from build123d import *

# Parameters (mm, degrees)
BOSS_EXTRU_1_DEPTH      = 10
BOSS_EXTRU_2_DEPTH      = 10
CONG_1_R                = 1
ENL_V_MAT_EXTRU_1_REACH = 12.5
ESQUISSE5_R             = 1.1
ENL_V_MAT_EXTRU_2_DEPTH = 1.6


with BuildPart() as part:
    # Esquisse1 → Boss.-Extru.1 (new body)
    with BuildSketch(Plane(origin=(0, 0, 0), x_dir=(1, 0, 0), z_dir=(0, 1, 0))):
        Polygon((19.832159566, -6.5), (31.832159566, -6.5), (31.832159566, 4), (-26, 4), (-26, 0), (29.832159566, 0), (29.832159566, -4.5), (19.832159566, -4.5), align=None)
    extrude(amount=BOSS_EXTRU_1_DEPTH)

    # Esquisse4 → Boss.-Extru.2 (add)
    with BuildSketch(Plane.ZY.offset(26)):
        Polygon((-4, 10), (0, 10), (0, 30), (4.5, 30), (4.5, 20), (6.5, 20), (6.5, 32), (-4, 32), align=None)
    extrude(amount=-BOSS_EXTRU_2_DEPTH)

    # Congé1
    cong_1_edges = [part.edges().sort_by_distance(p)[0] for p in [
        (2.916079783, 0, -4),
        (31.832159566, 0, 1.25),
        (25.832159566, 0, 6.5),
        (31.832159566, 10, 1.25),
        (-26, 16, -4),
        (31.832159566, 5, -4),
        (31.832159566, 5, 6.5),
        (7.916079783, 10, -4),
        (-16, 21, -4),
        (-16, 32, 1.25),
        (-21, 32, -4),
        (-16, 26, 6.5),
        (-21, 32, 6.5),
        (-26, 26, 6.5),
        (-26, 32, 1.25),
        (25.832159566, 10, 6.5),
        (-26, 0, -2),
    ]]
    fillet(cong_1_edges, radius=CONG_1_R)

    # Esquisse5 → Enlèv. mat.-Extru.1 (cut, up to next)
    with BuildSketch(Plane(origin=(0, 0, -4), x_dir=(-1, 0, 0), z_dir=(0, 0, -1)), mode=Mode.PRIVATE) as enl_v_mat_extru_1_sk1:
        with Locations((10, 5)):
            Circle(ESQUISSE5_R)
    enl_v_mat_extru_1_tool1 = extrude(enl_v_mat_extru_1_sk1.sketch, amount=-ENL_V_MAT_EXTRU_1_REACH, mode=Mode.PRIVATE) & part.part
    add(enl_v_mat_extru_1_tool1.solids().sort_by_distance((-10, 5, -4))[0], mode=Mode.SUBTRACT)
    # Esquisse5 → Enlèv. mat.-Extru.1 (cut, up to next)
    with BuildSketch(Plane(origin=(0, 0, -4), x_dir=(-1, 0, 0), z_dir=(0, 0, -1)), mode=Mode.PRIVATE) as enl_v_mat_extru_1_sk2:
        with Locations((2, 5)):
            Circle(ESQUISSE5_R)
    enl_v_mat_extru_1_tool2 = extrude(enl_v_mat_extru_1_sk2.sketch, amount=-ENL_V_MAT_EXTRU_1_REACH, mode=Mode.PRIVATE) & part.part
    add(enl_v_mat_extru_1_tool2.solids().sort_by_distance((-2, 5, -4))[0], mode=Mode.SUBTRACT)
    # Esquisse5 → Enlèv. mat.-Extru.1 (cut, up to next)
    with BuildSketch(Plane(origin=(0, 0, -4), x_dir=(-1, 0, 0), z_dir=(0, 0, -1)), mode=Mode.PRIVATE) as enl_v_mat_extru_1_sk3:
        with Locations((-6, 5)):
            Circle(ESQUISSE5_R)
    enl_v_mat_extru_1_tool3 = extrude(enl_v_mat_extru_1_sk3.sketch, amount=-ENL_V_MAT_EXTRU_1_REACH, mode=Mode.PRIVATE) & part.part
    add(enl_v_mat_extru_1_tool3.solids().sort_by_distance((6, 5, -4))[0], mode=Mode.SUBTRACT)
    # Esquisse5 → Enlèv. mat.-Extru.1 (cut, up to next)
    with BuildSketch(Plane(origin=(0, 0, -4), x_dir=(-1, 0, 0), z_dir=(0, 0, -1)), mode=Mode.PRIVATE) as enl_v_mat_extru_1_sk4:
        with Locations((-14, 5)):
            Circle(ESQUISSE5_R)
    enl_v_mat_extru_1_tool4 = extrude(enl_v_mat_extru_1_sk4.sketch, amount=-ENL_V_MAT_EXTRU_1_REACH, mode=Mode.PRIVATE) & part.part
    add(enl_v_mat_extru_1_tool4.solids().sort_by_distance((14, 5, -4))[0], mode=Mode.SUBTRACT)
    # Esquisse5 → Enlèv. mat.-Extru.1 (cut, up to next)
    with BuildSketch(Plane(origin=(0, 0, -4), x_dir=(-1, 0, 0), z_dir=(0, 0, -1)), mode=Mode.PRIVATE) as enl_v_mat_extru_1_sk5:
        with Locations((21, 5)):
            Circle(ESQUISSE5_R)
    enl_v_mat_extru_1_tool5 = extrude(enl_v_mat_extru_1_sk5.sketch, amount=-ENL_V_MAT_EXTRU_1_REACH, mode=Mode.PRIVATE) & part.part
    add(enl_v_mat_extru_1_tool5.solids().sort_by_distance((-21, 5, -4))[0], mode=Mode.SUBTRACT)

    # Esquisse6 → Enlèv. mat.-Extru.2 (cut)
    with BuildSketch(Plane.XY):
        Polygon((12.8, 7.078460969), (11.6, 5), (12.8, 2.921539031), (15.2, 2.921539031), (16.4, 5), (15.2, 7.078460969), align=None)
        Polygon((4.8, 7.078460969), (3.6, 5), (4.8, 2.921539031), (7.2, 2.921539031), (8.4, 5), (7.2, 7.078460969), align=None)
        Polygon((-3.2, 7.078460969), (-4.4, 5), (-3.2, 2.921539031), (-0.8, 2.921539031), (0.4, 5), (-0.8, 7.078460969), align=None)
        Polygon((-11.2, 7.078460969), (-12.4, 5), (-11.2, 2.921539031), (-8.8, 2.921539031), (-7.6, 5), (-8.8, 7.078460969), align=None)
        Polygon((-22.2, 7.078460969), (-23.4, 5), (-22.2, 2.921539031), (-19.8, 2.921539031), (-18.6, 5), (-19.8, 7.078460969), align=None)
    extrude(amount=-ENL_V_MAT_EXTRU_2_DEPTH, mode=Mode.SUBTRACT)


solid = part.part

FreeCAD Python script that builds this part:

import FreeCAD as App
import Part
import Sketcher
Q = App.Units.Quantity


def edges_at(feature, points):
    """Names of the edges that pass closest to the given points."""
    edges = feature.Shape.Edges
    near = lambda p: min(range(len(edges)), key=lambda i: edges[i].distToShape(Part.Vertex(*p))[0])
    return sorted({f"Edge{near(p) + 1}" for p in points})


def add_polygon(sketch, points):
    """Adds a closed chain of lines whose ends are joined by coincident constraints."""
    first, n = sketch.GeometryCount, len(points)
    for a, b in zip(points, points[1:] + points[:1]):
        sketch.addGeometry(Part.LineSegment(App.Vector(*a, 0), App.Vector(*b, 0)), False)
    for i in range(n):
        sketch.addConstraint(Sketcher.Constraint("Coincident", first + i, 2, first + (i + 1) % n, 1))

doc = App.newDocument("Part")
body = doc.addObject("PartDesign::Body", "Body")

# Sketch on XZ plane
sketch1 = body.newObject("Sketcher::SketchObject", "Sketch")
sketch1.AttachmentSupport = (doc.getObject("XZ_Plane"), [""])
sketch1.MapMode = "FlatFace"
add_polygon(sketch1, [(19.8, 6.5), (31.8, 6.5), (31.8, -4), (-26, -4), (-26, 0), (29.8, 0), (29.8, 4.5), (19.8, 4.5)])  # lines 0-7
sketch1.addConstraint([
    Sketcher.Constraint("Horizontal", 0),
    Sketcher.Constraint("Vertical", 1),
    Sketcher.Constraint("Horizontal", 2),
    Sketcher.Constraint("Vertical", 3),
    Sketcher.Constraint("Horizontal", 4),
    Sketcher.Constraint("Vertical", 5),
    Sketcher.Constraint("Horizontal", 6),
    Sketcher.Constraint("Vertical", 7),
    Sketcher.Constraint("PointOnObject", 3, 2, -1),
    Sketcher.Constraint("DistanceX", 0, 1, 0, 2, 12.0),
    Sketcher.Constraint("DistanceX", 6, 2, 6, 1, 10.0),
    Sketcher.Constraint("DistanceY", 3, 1, 3, 2, 4.0),
    Sketcher.Constraint("DistanceY", 7, 1, 7, 2, 2.0),
    Sketcher.Constraint("DistanceY", 1, 2, 1, 1, 10.5),
    Sketcher.Constraint("DistanceX", 2, 2, -1, 1, 26.0),
    Sketcher.Constraint("DistanceX", 2, 2, 2, 1, 57.83216),
])
pad1 = body.newObject("PartDesign::Pad", "Pad")
pad1.Profile = sketch1
pad1.Length = 10
pad1.Reversed = True

# Sketch on YZ plane
sketch2 = body.newObject("Sketcher::SketchObject", "Sketch001")
sketch2.AttachmentSupport = (doc.getObject("YZ_Plane"), [""])
sketch2.MapMode = "FlatFace"
sketch2.AttachmentOffset = App.Placement(App.Vector(0, 0, -26), App.Rotation())
add_polygon(sketch2, [(10, -4), (10, 0), (30, 0), (30, 4.5), (20, 4.5), (20, 6.5), (32, 6.5), (32, -4)])  # lines 0-7
sketch2.addConstraint([
    Sketcher.Constraint("Vertical", 0),
    Sketcher.Constraint("Horizontal", 1),
    Sketcher.Constraint("Vertical", 2),
    Sketcher.Constraint("Horizontal", 3),
    Sketcher.Constraint("Vertical", 4),
    Sketcher.Constraint("Horizontal", 5),
    Sketcher.Constraint("Vertical", 6),
    Sketcher.Constraint("Horizontal", 7),
    Sketcher.Constraint("PointOnObject", 0, 2, -1),
    Sketcher.Constraint("DistanceX", 1, 1, 1, 2, 20.0),
    Sketcher.Constraint("DistanceX", 3, 2, 3, 1, 10.0),
    Sketcher.Constraint("DistanceX", 5, 1, 5, 2, 12.0),
    Sketcher.Constraint("DistanceY", 0, 1, 0, 2, 4.0),
    Sketcher.Constraint("DistanceY", 4, 1, 4, 2, 2.0),
    Sketcher.Constraint("DistanceY", 2, 1, 2, 2, 4.5),
    Sketcher.Constraint("DistanceX", -1, 1, 0, 2, 10.0),
])
pad2 = body.newObject("PartDesign::Pad", "Pad001")
pad2.Profile = sketch2
pad2.Length = 10
doc.recompute()

fillet = body.newObject("PartDesign::Fillet", "Fillet")
fillet.Base = (pad2, edges_at(pad2, [
    (2.916, 0, -4),
    (31.832, 0, 1.25),
    (25.832, 0, 6.5),
    (31.832, 10, 1.25),
    (-26, 16, -4),
    (31.832, 5, -4),
    (31.832, 5, 6.5),
    (7.916, 10, -4),
    (-16, 21, -4),
    (-16, 32, 1.25),
    (-21, 32, -4),
    (-16, 26, 6.5),
    (-21, 32, 6.5),
    (-26, 26, 6.5),
    (-26, 32, 1.25),
    (25.832, 10, 6.5),
    (-26, 0, -2),
]))
fillet.Radius = 1

# Sketch on XY plane
sketch3 = body.newObject("Sketcher::SketchObject", "Sketch002")
sketch3.AttachmentSupport = (doc.getObject("XY_Plane"), [""])
sketch3.MapMode = "FlatFace"
sketch3.AttachmentOffset = App.Placement(App.Vector(0, 0, -4), App.Rotation())
sketch3.addGeometry(Part.Circle(App.Vector(-10, 5, 0), App.Vector(0, 0, 1), 1.1), False)
sketch3.addConstraint([
    Sketcher.Constraint("Diameter", 0, 2.2),
    Sketcher.Constraint("DistanceX", 0, 3, -1, 1, 10.0),
    Sketcher.Constraint("DistanceY", -1, 1, 0, 3, 5.0),
])
pocket1 = body.newObject("PartDesign::Pocket", "Pocket")
pocket1.Profile = sketch3
pocket1.Type = "UpToFirst"
pocket1.Reversed = True

# Sketch on XY plane
sketch4 = body.newObject("Sketcher::SketchObject", "Sketch003")
sketch4.AttachmentSupport = (doc.getObject("XY_Plane"), [""])
sketch4.MapMode = "FlatFace"
sketch4.AttachmentOffset = App.Placement(App.Vector(0, 0, -4), App.Rotation())
sketch4.addGeometry(Part.Circle(App.Vector(-2, 5, 0), App.Vector(0, 0, 1), 1.1), False)
sketch4.addConstraint([
    Sketcher.Constraint("Diameter", 0, 2.2),
    Sketcher.Constraint("DistanceX", 0, 3, -1, 1, 2.0),
    Sketcher.Constraint("DistanceY", -1, 1, 0, 3, 5.0),
])
pocket2 = body.newObject("PartDesign::Pocket", "Pocket001")
pocket2.Profile = sketch4
pocket2.Type = "UpToFirst"
pocket2.Reversed = True

# Sketch on XY plane
sketch5 = body.newObject("Sketcher::SketchObject", "Sketch004")
sketch5.AttachmentSupport = (doc.getObject("XY_Plane"), [""])
sketch5.MapMode = "FlatFace"
sketch5.AttachmentOffset = App.Placement(App.Vector(0, 0, -4), App.Rotation())
sketch5.addGeometry(Part.Circle(App.Vector(6, 5, 0), App.Vector(0, 0, 1), 1.1), False)
sketch5.addConstraint([
    Sketcher.Constraint("Diameter", 0, 2.2),
    Sketcher.Constraint("DistanceX", -1, 1, 0, 3, 6.0),
    Sketcher.Constraint("DistanceY", -1, 1, 0, 3, 5.0),
])
pocket3 = body.newObject("PartDesign::Pocket", "Pocket002")
pocket3.Profile = sketch5
pocket3.Type = "UpToFirst"
pocket3.Reversed = True

# Sketch on XY plane
sketch6 = body.newObject("Sketcher::SketchObject", "Sketch005")
sketch6.AttachmentSupport = (doc.getObject("XY_Plane"), [""])
sketch6.MapMode = "FlatFace"
sketch6.AttachmentOffset = App.Placement(App.Vector(0, 0, -4), App.Rotation())
sketch6.addGeometry(Part.Circle(App.Vector(14, 5, 0), App.Vector(0, 0, 1), 1.1), False)
sketch6.addConstraint([
    Sketcher.Constraint("Diameter", 0, 2.2),
    Sketcher.Constraint("DistanceX", -1, 1, 0, 3, 14.0),
    Sketcher.Constraint("DistanceY", -1, 1, 0, 3, 5.0),
])
pocket4 = body.newObject("PartDesign::Pocket", "Pocket003")
pocket4.Profile = sketch6
pocket4.Type = "UpToFirst"
pocket4.Reversed = True

# Sketch on XY plane
sketch7 = body.newObject("Sketcher::SketchObject", "Sketch006")
sketch7.AttachmentSupport = (doc.getObject("XY_Plane"), [""])
sketch7.MapMode = "FlatFace"
sketch7.AttachmentOffset = App.Placement(App.Vector(0, 0, -4), App.Rotation())
sketch7.addGeometry(Part.Circle(App.Vector(-21, 5, 0), App.Vector(0, 0, 1), 1.1), False)
sketch7.addConstraint([
    Sketcher.Constraint("Diameter", 0, 2.2),
    Sketcher.Constraint("DistanceX", 0, 3, -1, 1, 21.0),
    Sketcher.Constraint("DistanceY", -1, 1, 0, 3, 5.0),
])
pocket5 = body.newObject("PartDesign::Pocket", "Pocket004")
pocket5.Profile = sketch7
pocket5.Type = "UpToFirst"
pocket5.Reversed = True

# Sketch on XY plane
sketch8 = body.newObject("Sketcher::SketchObject", "Sketch007")
sketch8.AttachmentSupport = (doc.getObject("XY_Plane"), [""])
sketch8.MapMode = "FlatFace"
add_polygon(sketch8, [(12.8, 7.1), (11.6, 5), (12.8, 2.9), (15.2, 2.9), (16.4, 5), (15.2, 7.1)])  # lines 0-5
add_polygon(sketch8, [(4.8, 7.1), (3.6, 5), (4.8, 2.9), (7.2, 2.9), (8.4, 5), (7.2, 7.1)])  # lines 6-11
add_polygon(sketch8, [(-3.2, 7.1), (-4.4, 5), (-3.2, 2.9), (-0.8, 2.9), (0.4, 5), (-0.8, 7.1)])  # lines 12-17
add_polygon(sketch8, [(-11.2, 7.1), (-12.4, 5), (-11.2, 2.9), (-8.8, 2.9), (-7.6, 5), (-8.8, 7.1)])  # lines 18-23
add_polygon(sketch8, [(-22.2, 7.1), (-23.4, 5), (-22.2, 2.9), (-19.8, 2.9), (-18.6, 5), (-19.8, 7.1)])  # lines 24-29
sketch8.addConstraint([
    Sketcher.Constraint("Horizontal", 2),
    Sketcher.Constraint("Horizontal", 5),
    Sketcher.Constraint("Horizontal", 8),
    Sketcher.Constraint("Horizontal", 11),
    Sketcher.Constraint("Horizontal", 14),
    Sketcher.Constraint("Horizontal", 17),
    Sketcher.Constraint("Horizontal", 20),
    Sketcher.Constraint("Horizontal", 23),
    Sketcher.Constraint("Horizontal", 26),
    Sketcher.Constraint("Horizontal", 29),
    Sketcher.Constraint("Parallel", 0, 3),
    Sketcher.Constraint("Parallel", 1, 4),
    Sketcher.Constraint("Parallel", 3, 6),
    Sketcher.Constraint("Parallel", 4, 7),
    Sketcher.Constraint("Parallel", 6, 9),
    Sketcher.Constraint("Parallel", 7, 10),
    Sketcher.Constraint("Parallel", 9, 12),
    Sketcher.Constraint("Parallel", 10, 13),
    Sketcher.Constraint("Parallel", 12, 15),
    Sketcher.Constraint("Parallel", 13, 16),
    Sketcher.Constraint("Parallel", 15, 18),
    Sketcher.Constraint("Parallel", 16, 19),
    Sketcher.Constraint("Parallel", 18, 21),
    Sketcher.Constraint("Parallel", 19, 22),
    Sketcher.Constraint("Parallel", 21, 24),
    Sketcher.Constraint("Parallel", 22, 25),
    Sketcher.Constraint("Parallel", 24, 27),
    Sketcher.Constraint("Parallel", 25, 28),
    Sketcher.Constraint("Horizontal", 0, 2, 3, 2),
    Sketcher.Constraint("Horizontal", 3, 2, 6, 2),
    Sketcher.Constraint("Horizontal", 2, 2, 7, 2),
    Sketcher.Constraint("Horizontal", 6, 2, 9, 2),
    Sketcher.Constraint("Horizontal", 5, 2, 10, 2),
    Sketcher.Constraint("Horizontal", 9, 2, 12, 2),
    Sketcher.Constraint("Horizontal", 8, 2, 13, 2),
    Sketcher.Constraint("Horizontal", 12, 2, 15, 2),
    Sketcher.Constraint("Horizontal", 11, 2, 16, 2),
    Sketcher.Constraint("Horizontal", 15, 2, 18, 2),
    Sketcher.Constraint("Horizontal", 14, 2, 19, 2),
    Sketcher.Constraint("Horizontal", 18, 2, 21, 2),
    Sketcher.Constraint("Horizontal", 17, 2, 22, 2),
    Sketcher.Constraint("Horizontal", 21, 2, 24, 2),
    Sketcher.Constraint("Horizontal", 20, 2, 25, 2),
    Sketcher.Constraint("Horizontal", 24, 2, 27, 2),
    Sketcher.Constraint("Horizontal", 23, 2, 28, 2),
    Sketcher.Constraint("Vertical", 2, 2, 4, 2),
    Sketcher.Constraint("Vertical", 1, 2, 5, 2),
    Sketcher.Constraint("Equal", 5, 8),
    Sketcher.Constraint("Equal", 11, 14),
    Sketcher.Constraint("Equal", 17, 20),
    Sketcher.Constraint("Equal", 23, 26),
    Sketcher.Constraint("Angle", 0, Q("-120 deg")),
    Sketcher.Constraint("DistanceX", 2, 1, 2, 2, 2.4),
    Sketcher.Constraint("DistanceY", -1, 1, 0, 2, 5.0),
    Sketcher.Constraint("DistanceX", 6, 2, 0, 2, 8.0),
    Sketcher.Constraint("DistanceX", 12, 2, 6, 2, 8.0),
    Sketcher.Constraint("DistanceX", 18, 2, 12, 2, 8.0),
    Sketcher.Constraint("DistanceX", 24, 2, 18, 2, 11.0),
    Sketcher.Constraint("Distance", 0, 2.4),
    Sketcher.Constraint("DistanceX", -1, 1, 0, 2, 11.6),
])
pocket6 = body.newObject("PartDesign::Pocket", "Pocket005")
pocket6.Profile = sketch8
pocket6.Length = 1.6

doc.recompute()
